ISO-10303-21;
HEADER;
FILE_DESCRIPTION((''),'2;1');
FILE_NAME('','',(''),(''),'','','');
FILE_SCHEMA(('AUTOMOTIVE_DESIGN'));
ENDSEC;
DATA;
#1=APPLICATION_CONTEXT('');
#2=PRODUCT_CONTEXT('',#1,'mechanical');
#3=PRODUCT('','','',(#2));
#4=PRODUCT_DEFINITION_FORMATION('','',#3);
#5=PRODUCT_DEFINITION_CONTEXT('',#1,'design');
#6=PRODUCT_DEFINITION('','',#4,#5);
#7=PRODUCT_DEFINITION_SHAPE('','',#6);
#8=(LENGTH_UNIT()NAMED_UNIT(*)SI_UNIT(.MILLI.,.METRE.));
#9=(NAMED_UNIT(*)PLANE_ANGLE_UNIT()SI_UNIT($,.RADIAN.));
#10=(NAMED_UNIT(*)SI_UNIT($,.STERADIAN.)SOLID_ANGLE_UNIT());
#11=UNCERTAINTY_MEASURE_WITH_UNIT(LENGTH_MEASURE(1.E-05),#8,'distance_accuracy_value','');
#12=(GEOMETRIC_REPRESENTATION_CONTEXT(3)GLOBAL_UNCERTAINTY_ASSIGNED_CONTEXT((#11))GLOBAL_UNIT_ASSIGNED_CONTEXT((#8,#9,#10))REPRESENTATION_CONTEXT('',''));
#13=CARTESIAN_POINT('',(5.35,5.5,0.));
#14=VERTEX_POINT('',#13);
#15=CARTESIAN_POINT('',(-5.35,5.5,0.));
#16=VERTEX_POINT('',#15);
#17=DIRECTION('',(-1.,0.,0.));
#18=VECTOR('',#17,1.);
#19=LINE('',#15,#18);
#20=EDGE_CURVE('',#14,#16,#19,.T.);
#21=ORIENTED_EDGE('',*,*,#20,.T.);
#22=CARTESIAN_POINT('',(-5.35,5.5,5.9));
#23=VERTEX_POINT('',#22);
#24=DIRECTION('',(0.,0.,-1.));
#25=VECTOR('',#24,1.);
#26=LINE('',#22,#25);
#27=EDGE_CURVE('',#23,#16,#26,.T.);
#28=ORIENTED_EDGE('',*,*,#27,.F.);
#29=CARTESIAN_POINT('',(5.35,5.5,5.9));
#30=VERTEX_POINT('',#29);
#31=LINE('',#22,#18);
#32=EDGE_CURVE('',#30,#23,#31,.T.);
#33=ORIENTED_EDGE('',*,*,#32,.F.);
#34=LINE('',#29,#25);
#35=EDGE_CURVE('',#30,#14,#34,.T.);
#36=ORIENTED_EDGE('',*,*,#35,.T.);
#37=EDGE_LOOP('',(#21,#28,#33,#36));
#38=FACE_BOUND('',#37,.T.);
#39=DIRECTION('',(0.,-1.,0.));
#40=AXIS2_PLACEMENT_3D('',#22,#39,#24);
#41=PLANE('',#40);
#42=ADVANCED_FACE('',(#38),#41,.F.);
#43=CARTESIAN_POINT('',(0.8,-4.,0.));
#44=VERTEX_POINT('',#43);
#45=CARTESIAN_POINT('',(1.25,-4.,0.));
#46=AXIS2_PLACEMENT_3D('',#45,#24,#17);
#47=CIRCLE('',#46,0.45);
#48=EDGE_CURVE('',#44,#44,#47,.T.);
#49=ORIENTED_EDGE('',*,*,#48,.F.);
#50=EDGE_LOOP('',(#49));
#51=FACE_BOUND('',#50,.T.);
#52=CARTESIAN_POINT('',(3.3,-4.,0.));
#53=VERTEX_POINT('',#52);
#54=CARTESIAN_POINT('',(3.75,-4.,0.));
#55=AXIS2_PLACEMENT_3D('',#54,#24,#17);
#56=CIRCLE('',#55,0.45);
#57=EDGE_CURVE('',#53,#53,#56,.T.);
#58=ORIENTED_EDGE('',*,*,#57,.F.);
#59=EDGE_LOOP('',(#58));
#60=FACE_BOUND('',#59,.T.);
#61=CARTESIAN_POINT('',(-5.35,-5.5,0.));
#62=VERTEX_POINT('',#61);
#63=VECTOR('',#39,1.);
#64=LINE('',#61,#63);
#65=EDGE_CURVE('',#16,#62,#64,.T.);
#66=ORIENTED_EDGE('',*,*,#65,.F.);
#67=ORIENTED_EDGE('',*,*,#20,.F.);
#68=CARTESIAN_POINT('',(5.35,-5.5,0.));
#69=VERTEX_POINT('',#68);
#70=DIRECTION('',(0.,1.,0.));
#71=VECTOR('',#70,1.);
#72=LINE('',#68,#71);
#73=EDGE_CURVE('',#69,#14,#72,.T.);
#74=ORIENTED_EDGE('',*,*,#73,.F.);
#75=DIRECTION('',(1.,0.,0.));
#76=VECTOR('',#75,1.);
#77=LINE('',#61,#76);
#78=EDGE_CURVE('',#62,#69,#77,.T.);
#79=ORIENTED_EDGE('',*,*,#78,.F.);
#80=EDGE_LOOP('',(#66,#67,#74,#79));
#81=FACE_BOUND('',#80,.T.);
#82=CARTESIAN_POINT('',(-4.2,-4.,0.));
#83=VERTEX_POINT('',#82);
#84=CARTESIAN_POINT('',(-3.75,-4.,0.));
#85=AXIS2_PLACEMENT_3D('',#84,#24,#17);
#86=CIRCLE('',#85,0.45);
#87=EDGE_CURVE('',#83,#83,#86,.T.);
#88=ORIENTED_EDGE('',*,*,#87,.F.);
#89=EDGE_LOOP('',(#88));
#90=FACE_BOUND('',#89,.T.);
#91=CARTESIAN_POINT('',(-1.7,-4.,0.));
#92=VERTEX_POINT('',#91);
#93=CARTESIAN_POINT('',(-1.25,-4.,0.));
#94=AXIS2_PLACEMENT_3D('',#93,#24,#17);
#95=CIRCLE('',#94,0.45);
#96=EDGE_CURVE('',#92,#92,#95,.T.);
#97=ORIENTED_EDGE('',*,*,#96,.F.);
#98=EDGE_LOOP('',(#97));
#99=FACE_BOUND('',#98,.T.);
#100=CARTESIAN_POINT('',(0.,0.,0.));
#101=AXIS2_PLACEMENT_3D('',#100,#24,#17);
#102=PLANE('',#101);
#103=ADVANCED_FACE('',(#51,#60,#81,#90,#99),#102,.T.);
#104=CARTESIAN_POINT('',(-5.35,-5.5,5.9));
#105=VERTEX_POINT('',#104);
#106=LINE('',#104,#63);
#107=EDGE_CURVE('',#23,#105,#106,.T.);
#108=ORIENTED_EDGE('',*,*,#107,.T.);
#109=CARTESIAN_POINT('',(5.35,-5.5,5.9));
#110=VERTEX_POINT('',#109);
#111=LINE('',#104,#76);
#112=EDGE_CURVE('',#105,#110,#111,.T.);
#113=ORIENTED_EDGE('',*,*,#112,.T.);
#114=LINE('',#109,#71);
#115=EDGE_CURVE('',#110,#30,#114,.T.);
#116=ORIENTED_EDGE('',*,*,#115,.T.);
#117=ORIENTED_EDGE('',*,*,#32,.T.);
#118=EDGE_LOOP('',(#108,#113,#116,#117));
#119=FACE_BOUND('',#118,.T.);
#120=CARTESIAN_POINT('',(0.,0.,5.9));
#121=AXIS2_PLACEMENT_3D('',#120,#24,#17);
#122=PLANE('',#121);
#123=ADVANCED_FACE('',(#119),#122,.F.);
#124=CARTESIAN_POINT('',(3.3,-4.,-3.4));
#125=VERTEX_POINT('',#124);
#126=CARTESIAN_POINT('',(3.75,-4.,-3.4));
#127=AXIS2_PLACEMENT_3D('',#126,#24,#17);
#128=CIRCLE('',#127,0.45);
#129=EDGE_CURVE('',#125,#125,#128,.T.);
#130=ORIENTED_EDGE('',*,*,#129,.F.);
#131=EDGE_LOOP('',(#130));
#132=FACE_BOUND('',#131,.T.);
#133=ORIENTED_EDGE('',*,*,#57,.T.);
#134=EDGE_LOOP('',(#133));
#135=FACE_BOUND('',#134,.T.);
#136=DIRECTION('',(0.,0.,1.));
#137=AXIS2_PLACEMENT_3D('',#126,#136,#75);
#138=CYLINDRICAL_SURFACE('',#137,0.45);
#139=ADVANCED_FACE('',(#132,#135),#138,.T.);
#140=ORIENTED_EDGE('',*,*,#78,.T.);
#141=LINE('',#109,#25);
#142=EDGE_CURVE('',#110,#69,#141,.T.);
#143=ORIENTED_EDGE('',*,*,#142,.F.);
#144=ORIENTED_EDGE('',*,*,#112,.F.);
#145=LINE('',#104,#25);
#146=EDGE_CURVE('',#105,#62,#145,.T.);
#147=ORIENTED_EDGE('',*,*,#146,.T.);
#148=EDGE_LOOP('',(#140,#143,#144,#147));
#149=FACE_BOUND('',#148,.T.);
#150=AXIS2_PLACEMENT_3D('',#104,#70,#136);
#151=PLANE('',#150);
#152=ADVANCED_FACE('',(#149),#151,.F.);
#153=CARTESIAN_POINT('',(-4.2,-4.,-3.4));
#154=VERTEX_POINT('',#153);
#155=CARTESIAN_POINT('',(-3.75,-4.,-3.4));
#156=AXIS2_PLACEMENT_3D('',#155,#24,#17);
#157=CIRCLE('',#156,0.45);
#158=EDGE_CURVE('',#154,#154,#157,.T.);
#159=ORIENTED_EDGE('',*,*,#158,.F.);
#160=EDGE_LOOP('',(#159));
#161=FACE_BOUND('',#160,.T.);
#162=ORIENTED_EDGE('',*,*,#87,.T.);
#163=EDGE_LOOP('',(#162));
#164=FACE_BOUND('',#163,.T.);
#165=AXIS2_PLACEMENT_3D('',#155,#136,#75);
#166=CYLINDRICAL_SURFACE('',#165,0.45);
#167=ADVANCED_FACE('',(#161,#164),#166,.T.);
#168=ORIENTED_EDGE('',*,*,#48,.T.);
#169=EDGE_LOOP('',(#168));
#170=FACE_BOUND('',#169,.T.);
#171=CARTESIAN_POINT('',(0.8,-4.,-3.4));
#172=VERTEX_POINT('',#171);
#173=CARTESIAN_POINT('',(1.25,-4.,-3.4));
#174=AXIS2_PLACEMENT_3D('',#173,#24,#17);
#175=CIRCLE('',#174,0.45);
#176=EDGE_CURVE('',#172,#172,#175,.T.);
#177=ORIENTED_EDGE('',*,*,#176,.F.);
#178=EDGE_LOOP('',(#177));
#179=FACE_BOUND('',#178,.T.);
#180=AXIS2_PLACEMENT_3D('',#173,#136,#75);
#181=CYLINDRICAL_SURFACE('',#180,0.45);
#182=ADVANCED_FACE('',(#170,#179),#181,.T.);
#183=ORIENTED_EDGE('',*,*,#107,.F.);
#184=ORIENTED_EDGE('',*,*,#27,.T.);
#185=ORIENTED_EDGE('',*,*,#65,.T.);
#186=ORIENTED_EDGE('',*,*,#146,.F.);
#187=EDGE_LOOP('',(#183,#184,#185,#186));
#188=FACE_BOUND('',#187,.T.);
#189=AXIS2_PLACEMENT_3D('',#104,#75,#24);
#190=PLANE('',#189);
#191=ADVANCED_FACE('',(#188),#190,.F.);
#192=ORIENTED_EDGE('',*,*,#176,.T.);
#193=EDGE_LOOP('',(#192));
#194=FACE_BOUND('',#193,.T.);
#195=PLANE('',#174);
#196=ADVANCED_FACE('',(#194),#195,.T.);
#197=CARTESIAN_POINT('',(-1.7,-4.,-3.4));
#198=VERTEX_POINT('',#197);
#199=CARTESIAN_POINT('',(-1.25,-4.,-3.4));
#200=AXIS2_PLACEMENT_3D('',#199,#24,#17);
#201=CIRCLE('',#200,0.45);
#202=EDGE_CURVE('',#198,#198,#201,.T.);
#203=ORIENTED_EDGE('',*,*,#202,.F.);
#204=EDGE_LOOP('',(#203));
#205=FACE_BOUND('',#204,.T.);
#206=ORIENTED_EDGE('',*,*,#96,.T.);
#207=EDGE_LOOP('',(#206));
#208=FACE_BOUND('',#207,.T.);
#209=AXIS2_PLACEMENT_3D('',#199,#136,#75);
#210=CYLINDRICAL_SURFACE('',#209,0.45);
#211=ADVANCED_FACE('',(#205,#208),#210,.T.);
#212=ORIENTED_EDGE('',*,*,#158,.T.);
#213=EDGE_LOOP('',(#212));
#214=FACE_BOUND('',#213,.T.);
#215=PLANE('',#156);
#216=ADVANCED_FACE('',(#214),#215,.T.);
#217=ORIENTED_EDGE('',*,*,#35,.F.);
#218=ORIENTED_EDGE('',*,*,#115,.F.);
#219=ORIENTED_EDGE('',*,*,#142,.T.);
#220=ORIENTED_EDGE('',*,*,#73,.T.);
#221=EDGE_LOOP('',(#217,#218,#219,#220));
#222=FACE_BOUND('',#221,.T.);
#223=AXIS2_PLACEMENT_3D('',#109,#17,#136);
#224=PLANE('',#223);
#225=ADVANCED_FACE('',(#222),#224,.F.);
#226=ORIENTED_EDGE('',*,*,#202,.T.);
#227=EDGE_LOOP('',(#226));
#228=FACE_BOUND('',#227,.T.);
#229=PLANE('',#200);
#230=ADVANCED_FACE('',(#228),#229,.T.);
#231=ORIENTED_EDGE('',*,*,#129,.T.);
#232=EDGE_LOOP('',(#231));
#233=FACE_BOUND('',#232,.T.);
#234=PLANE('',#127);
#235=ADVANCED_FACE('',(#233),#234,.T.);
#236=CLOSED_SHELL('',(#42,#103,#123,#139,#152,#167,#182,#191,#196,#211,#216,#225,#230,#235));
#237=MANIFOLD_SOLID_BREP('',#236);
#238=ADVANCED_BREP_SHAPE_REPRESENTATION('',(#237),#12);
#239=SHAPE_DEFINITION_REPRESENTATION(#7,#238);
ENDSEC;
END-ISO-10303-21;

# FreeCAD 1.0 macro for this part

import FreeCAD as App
import Part
import Sketcher

doc = App.newDocument("Part")
body = doc.addObject("PartDesign::Body", "Body")

sketch1 = body.newObject("Sketcher::SketchObject", "Sketch")
sketch1.AttachmentSupport = (doc.getObject("XY_Plane"), [""])
sketch1.MapMode = "FlatFace"
sketch1.addGeometry([
    Part.LineSegment(App.Vector(-5, 6, 0), App.Vector(-5, -6, 0)),
    Part.LineSegment(App.Vector(-5, -6, 0), App.Vector(5, -6, 0)),
    Part.LineSegment(App.Vector(5, -6, 0), App.Vector(5, 6, 0)),
    Part.LineSegment(App.Vector(5, 6, 0), App.Vector(-5, 6, 0)),
], False)
sketch1.addConstraint([
    Sketcher.Constraint("Coincident", 0, 2, 1, 1),
    Sketcher.Constraint("Coincident", 1, 2, 2, 1),
    Sketcher.Constraint("Coincident", 2, 2, 3, 1),
    Sketcher.Constraint("Coincident", 3, 2, 0, 1),
    Sketcher.Constraint("Vertical", 0),
    Sketcher.Constraint("Horizontal", 1),
    Sketcher.Constraint("Vertical", 2),
    Sketcher.Constraint("Horizontal", 3),
    Sketcher.Constraint("Symmetric", 0, 2, 2, 2, -1, 1),
    Sketcher.Constraint("DistanceY", 0, 2, 0, 1, 11.0),
    Sketcher.Constraint("DistanceX", 1, 1, 1, 2, 10.7),
])
pad1 = body.newObject("PartDesign::Pad", "Pad")
pad1.Profile = sketch1
pad1.Length = 5.9

sketch2 = body.newObject("Sketcher::SketchObject", "Sketch001")
sketch2.AttachmentSupport = (doc.getObject("XY_Plane"), [""])
sketch2.MapMode = "FlatFace"
sketch2.addGeometry([
    Part.Circle(App.Vector(3.75, -4, 0), App.Vector(0, 0, 1), 0.45),
    Part.Circle(App.Vector(1.25, -4, 0), App.Vector(0, 0, 1), 0.45),
    Part.Circle(App.Vector(-1.25, -4, 0), App.Vector(0, 0, 1), 0.45),
    Part.Circle(App.Vector(-3.75, -4, 0), App.Vector(0, 0, 1), 0.45),
], False)
sketch2.addConstraint([
    Sketcher.Constraint("Equal", 0, 1),
    Sketcher.Constraint("Equal", 1, 2),
    Sketcher.Constraint("Equal", 2, 3),
    Sketcher.Constraint("Symmetric", 1, 3, 2, 3, -2),
    Sketcher.Constraint("Symmetric", 0, 3, 3, 3, -2),
    Sketcher.Constraint("Horizontal", 0, 3, 1, 3),
    Sketcher.Constraint("Diameter", 0, 0.9),
    Sketcher.Constraint("DistanceY", 0, 3, -1, 1, 4.0),
    Sketcher.Constraint("DistanceX", 2, 3, 0, 3, 5.0),
    Sketcher.Constraint("DistanceX", 1, 3, 0, 3, 2.5),
])
pad2 = body.newObject("PartDesign::Pad", "Pad001")
pad2.Profile = sketch2
pad2.Length = 3.4
pad2.Reversed = True

doc.recompute()
